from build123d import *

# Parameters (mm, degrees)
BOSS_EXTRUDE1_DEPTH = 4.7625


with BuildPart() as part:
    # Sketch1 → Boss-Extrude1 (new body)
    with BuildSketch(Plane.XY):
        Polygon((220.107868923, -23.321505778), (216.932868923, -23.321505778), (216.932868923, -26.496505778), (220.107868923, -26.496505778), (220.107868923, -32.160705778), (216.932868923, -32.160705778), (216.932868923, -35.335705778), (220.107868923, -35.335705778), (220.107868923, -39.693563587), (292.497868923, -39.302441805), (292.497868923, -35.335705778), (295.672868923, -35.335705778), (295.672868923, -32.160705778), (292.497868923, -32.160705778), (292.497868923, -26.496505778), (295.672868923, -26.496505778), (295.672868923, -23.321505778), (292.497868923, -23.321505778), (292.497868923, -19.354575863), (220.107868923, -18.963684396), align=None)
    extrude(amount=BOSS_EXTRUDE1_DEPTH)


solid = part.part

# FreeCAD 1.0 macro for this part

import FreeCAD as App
import Part
import Sketcher
from FreeCAD import Vector
Q = App.Units.Quantity

doc = App.newDocument("Part")
body = doc.addObject("PartDesign::Body", "Body")

# Sketch on XY plane
sketch1 = doc.addObject("Sketcher::SketchObject", "Sketch")
body.addObject(sketch1)
sketch1.AttachmentSupport = (doc.XY_Plane, [""])
sketch1.MapMode = "FlatFace"
sketch1.addGeometry([
    Part.LineSegment(Vector(220.107869, -23.321506, 0), Vector(216.932869, -23.321506, 0)),  # 0
    Part.LineSegment(Vector(216.932869, -23.321506, 0), Vector(216.932869, -26.496506, 0)),  # 1
    Part.LineSegment(Vector(216.932869, -26.496506, 0), Vector(220.107869, -26.496506, 0)),  # 2
    Part.LineSegment(Vector(220.107869, -26.496506, 0), Vector(220.107869, -32.160706, 0)),  # 3
    Part.LineSegment(Vector(220.107869, -32.160706, 0), Vector(216.932869, -32.160706, 0)),  # 4
    Part.LineSegment(Vector(216.932869, -32.160706, 0), Vector(216.932869, -35.335706, 0)),  # 5
    Part.LineSegment(Vector(216.932869, -35.335706, 0), Vector(220.107869, -35.335706, 0)),  # 6
    Part.LineSegment(Vector(220.107869, -35.335706, 0), Vector(220.107869, -39.693564, 0)),  # 7
    Part.LineSegment(Vector(220.107869, -39.693564, 0), Vector(292.497869, -39.302442, 0)),  # 8
    Part.LineSegment(Vector(292.497869, -39.302442, 0), Vector(292.497869, -35.335706, 0)),  # 9
    Part.LineSegment(Vector(292.497869, -35.335706, 0), Vector(295.672869, -35.335706, 0)),  # 10
    Part.LineSegment(Vector(295.672869, -35.335706, 0), Vector(295.672869, -32.160706, 0)),  # 11
    Part.LineSegment(Vector(295.672869, -32.160706, 0), Vector(292.497869, -32.160706, 0)),  # 12
    Part.LineSegment(Vector(292.497869, -32.160706, 0), Vector(292.497869, -26.496506, 0)),  # 13
    Part.LineSegment(Vector(292.497869, -26.496506, 0), Vector(295.672869, -26.496506, 0)),  # 14
    Part.LineSegment(Vector(295.672869, -26.496506, 0), Vector(295.672869, -23.321506, 0)),  # 15
    Part.LineSegment(Vector(295.672869, -23.321506, 0), Vector(292.497869, -23.321506, 0)),  # 16
    Part.LineSegment(Vector(292.497869, -23.321506, 0), Vector(292.497869, -19.354576, 0)),  # 17
    Part.LineSegment(Vector(292.497869, -19.354576, 0), Vector(220.107869, -18.963684, 0)),  # 18
    Part.LineSegment(Vector(220.107869, -18.963684, 0), Vector(220.107869, -23.321506, 0)),  # 19
], False)
sketch1.addConstraint([
    Sketcher.Constraint("Coincident", 0, 2, 1, 1),
    Sketcher.Constraint("Coincident", 1, 2, 2, 1),
    Sketcher.Constraint("Coincident", 2, 2, 3, 1),
    Sketcher.Constraint("Coincident", 3, 2, 4, 1),
    Sketcher.Constraint("Coincident", 4, 2, 5, 1),
    Sketcher.Constraint("Coincident", 5, 2, 6, 1),
    Sketcher.Constraint("Coincident", 6, 2, 7, 1),
    Sketcher.Constraint("Coincident", 7, 2, 8, 1),
    Sketcher.Constraint("Coincident", 8, 2, 9, 1),
    Sketcher.Constraint("Coincident", 9, 2, 10, 1),
    Sketcher.Constraint("Coincident", 10, 2, 11, 1),
    Sketcher.Constraint("Coincident", 11, 2, 12, 1),
    Sketcher.Constraint("Coincident", 12, 2, 13, 1),
    Sketcher.Constraint("Coincident", 13, 2, 14, 1),
    Sketcher.Constraint("Coincident", 14, 2, 15, 1),
    Sketcher.Constraint("Coincident", 15, 2, 16, 1),
    Sketcher.Constraint("Coincident", 16, 2, 17, 1),
    Sketcher.Constraint("Coincident", 17, 2, 18, 1),
    Sketcher.Constraint("Coincident", 18, 2, 19, 1),
    Sketcher.Constraint("Coincident", 19, 2, 0, 1),
    Sketcher.Constraint("Horizontal", 0),
    Sketcher.Constraint("Vertical", 1),
    Sketcher.Constraint("Horizontal", 2),
    Sketcher.Constraint("Vertical", 3),
    Sketcher.Constraint("Horizontal", 4),
    Sketcher.Constraint("Vertical", 5),
    Sketcher.Constraint("Horizontal", 6),
    Sketcher.Constraint("Vertical", 7),
    Sketcher.Constraint("Vertical", 9),
    Sketcher.Constraint("Horizontal", 10),
    Sketcher.Constraint("Vertical", 11),
    Sketcher.Constraint("Horizontal", 12),
    Sketcher.Constraint("Vertical", 13),
    Sketcher.Constraint("Horizontal", 14),
    Sketcher.Constraint("Vertical", 15),
    Sketcher.Constraint("Horizontal", 16),
    Sketcher.Constraint("Vertical", 17),
    Sketcher.Constraint("Vertical", 19),
    Sketcher.Constraint("DistanceX", 0, 2, 0, 1, Q("0.125 in")),
    Sketcher.Constraint("DistanceX", 2, 1, 2, 2, Q("0.125 in")),
    Sketcher.Constraint("DistanceX", 4, 2, 4, 1, Q("0.125 in")),
    Sketcher.Constraint("DistanceX", 6, 1, 6, 2, Q("0.125 in")),
    Sketcher.Constraint("DistanceX", 10, 1, 10, 2, Q("0.125 in")),
    Sketcher.Constraint("DistanceX", 12, 2, 12, 1, Q("0.125 in")),
    Sketcher.Constraint("DistanceX", 14, 1, 14, 2, Q("0.125 in")),
    Sketcher.Constraint("DistanceX", 16, 2, 16, 1, Q("0.125 in")),
    Sketcher.Constraint("DistanceY", 1, 2, 1, 1, Q("0.125 in")),
    Sketcher.Constraint("DistanceY", 3, 2, 3, 1, Q("0.223 in")),
    Sketcher.Constraint("DistanceY", 5, 2, 5, 1, Q("0.125 in")),
    Sketcher.Constraint("DistanceY", 11, 1, 11, 2, Q("0.125 in")),
    Sketcher.Constraint("DistanceY", 13, 1, 13, 2, Q("0.223 in")),
    Sketcher.Constraint("DistanceY", 15, 1, 15, 2, Q("0.125 in")),
    Sketcher.Constraint("DistanceX", 7, 2, 8, 2, Q("2.85 in")),
    Sketcher.Constraint("DistanceY", 9, 2, 3, 2, Q("0.125 in")),
    Sketcher.Constraint("DistanceY", 17, 1, 17, 2, 3.96693),
    Sketcher.Constraint("DistanceY", 19, 2, 19, 1, 4.357821),
    Sketcher.Constraint("DistanceY", 7, 2, 7, 1, 4.357858),
    Sketcher.Constraint("DistanceY", 9, 1, 9, 2, 3.966736),
    Sketcher.Constraint("DistanceX", -1, 1, 0, 2, 216.932869),
    Sketcher.Constraint("DistanceY", 8, 2, -1, 1, 39.302442),
])
pad1 = doc.addObject("PartDesign::Pad", "Pad")
body.addObject(pad1)
pad1.Profile = sketch1
pad1.Length = Q("0.1875 in")

doc.recompute()
